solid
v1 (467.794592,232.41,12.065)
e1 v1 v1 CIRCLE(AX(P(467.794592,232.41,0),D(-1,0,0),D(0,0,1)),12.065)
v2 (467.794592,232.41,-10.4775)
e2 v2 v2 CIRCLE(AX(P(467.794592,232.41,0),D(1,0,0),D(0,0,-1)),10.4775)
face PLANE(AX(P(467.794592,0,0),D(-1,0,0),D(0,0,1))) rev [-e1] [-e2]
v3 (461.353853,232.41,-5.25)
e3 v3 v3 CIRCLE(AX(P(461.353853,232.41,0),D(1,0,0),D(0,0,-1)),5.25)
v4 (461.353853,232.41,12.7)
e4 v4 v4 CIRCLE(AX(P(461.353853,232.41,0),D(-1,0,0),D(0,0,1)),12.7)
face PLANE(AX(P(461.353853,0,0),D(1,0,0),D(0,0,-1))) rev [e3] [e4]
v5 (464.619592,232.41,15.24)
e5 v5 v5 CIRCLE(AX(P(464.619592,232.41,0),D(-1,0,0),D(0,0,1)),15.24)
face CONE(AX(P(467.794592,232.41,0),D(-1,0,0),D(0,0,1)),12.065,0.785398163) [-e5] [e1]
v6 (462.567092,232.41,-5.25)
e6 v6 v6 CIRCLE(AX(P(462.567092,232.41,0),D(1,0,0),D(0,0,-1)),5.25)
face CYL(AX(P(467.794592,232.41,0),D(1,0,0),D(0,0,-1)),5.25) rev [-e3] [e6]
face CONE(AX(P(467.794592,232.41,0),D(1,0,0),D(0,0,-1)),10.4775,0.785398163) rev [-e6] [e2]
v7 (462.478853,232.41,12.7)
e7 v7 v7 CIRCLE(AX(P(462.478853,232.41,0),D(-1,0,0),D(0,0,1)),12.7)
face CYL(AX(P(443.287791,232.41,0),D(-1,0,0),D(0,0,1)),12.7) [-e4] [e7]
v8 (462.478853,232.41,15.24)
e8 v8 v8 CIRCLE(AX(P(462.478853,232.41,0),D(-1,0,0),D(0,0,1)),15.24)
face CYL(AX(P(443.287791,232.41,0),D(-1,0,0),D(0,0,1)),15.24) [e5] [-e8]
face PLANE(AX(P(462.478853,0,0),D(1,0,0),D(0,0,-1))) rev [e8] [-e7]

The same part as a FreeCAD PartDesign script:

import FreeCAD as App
import Part
import Sketcher

V = App.Vector
Q = App.Units.Quantity


def add_polygon(sketch, points):
    """Adds a closed chain of lines whose ends are joined by coincident constraints."""
    first, n = sketch.GeometryCount, len(points)
    for a, b in zip(points, points[1:] + points[:1]):
        sketch.addGeometry(Part.LineSegment(App.Vector(*a, 0), App.Vector(*b, 0)), False)
    for i in range(n):
        sketch.addConstraint(Sketcher.Constraint("Coincident", first + i, 2, first + (i + 1) % n, 1))

doc = App.newDocument("Part")
body = doc.addObject("PartDesign::Body", "Body")

# Sketch on XY plane
sketch1 = doc.addObject("Sketcher::SketchObject", "Sketch")
body.addObject(sketch1)
sketch1.AttachmentSupport = (doc.XY_Plane, [""])
sketch1.MapMode = "FlatFace"
add_polygon(sketch1, [(461.4, 245.1), (461.4, 232.4), (467.8, 232.4), (467.8, 244.5), (464.6, 247.7), (462.5, 247.7), (462.5, 245.1)])  # lines 0-6
sketch1.addGeometry(Part.LineSegment(V(461.4, 232.4, 0), V(467.8, 232.4, 0)), True)  # axis
sketch1.addConstraint([
    Sketcher.Constraint("Vertical", 0),
    Sketcher.Constraint("Horizontal", 1),
    Sketcher.Constraint("Vertical", 2),
    Sketcher.Constraint("Horizontal", 4),
    Sketcher.Constraint("Vertical", 5),
    Sketcher.Constraint("Horizontal", 6),
    Sketcher.Constraint("Horizontal", 7),
    Sketcher.Constraint("Coincident", 7, 1, 0, 2),
    Sketcher.Constraint("Vertical", 2, 2, 7, 2),
    Sketcher.Constraint("DistanceY", 0, 2, 0, 1, Q("0.5 in")),
    Sketcher.Constraint("DistanceY", 5, 2, 5, 1, Q("0.1 in")),
    Sketcher.Constraint("Angle", 3, Q("135 deg")),
    Sketcher.Constraint("DistanceY", 2, 1, 2, 2, Q("0.475 in")),
    Sketcher.Constraint("DistanceY", -1, 1, 0, 2, Q("9.15 in")),
    Sketcher.Constraint("DistanceX", 6, 2, 6, 1, 1.125),
    Sketcher.Constraint("DistanceX", 1, 1, 1, 2, 6.44074),
    Sketcher.Constraint("DistanceX", -1, 1, 0, 2, 461.353853),
])
revolution = doc.addObject("PartDesign::Revolution", "Revolution")
body.addObject(revolution)
revolution.Profile = sketch1
revolution.ReferenceAxis = (sketch1, ["Axis0"])
revolution.Angle = 360

# Sketch on YZ plane
sketch2 = doc.addObject("Sketcher::SketchObject", "Sketch001")
body.addObject(sketch2)
sketch2.AttachmentSupport = (doc.YZ_Plane, [""])
sketch2.MapMode = "FlatFace"
sketch2.AttachmentOffset = App.Placement(V(0, 0, 467.794592), App.Rotation())
sketch2.addGeometry(Part.Circle(V(232, 0, 0), V(0, 0, 1), 5), False)
sketch2.addConstraint([
    Sketcher.Constraint("PointOnObject", 0, 3, -1),
    Sketcher.Constraint("Diameter", 0, 10.5),
    Sketcher.Constraint("DistanceX", -1, 1, 0, 3, Q("9.15 in")),
])
doc.recompute()
hole = doc.addObject("PartDesign::Hole", "Hole")
body.addObject(hole)
hole.Profile = sketch2
hole.ThreadType = "None"
hole.Diameter = 10.5
hole.DepthType = "Dimension"
hole.Depth = Q("0.65 in")
hole.DrillPoint = "Angled"
hole.DrillPointAngle = 118
hole.HoleCutType = "Countersink"
hole.HoleCutDiameter = Q("0.825 in")
hole.HoleCutCountersinkAngle = 90

doc.recompute()
